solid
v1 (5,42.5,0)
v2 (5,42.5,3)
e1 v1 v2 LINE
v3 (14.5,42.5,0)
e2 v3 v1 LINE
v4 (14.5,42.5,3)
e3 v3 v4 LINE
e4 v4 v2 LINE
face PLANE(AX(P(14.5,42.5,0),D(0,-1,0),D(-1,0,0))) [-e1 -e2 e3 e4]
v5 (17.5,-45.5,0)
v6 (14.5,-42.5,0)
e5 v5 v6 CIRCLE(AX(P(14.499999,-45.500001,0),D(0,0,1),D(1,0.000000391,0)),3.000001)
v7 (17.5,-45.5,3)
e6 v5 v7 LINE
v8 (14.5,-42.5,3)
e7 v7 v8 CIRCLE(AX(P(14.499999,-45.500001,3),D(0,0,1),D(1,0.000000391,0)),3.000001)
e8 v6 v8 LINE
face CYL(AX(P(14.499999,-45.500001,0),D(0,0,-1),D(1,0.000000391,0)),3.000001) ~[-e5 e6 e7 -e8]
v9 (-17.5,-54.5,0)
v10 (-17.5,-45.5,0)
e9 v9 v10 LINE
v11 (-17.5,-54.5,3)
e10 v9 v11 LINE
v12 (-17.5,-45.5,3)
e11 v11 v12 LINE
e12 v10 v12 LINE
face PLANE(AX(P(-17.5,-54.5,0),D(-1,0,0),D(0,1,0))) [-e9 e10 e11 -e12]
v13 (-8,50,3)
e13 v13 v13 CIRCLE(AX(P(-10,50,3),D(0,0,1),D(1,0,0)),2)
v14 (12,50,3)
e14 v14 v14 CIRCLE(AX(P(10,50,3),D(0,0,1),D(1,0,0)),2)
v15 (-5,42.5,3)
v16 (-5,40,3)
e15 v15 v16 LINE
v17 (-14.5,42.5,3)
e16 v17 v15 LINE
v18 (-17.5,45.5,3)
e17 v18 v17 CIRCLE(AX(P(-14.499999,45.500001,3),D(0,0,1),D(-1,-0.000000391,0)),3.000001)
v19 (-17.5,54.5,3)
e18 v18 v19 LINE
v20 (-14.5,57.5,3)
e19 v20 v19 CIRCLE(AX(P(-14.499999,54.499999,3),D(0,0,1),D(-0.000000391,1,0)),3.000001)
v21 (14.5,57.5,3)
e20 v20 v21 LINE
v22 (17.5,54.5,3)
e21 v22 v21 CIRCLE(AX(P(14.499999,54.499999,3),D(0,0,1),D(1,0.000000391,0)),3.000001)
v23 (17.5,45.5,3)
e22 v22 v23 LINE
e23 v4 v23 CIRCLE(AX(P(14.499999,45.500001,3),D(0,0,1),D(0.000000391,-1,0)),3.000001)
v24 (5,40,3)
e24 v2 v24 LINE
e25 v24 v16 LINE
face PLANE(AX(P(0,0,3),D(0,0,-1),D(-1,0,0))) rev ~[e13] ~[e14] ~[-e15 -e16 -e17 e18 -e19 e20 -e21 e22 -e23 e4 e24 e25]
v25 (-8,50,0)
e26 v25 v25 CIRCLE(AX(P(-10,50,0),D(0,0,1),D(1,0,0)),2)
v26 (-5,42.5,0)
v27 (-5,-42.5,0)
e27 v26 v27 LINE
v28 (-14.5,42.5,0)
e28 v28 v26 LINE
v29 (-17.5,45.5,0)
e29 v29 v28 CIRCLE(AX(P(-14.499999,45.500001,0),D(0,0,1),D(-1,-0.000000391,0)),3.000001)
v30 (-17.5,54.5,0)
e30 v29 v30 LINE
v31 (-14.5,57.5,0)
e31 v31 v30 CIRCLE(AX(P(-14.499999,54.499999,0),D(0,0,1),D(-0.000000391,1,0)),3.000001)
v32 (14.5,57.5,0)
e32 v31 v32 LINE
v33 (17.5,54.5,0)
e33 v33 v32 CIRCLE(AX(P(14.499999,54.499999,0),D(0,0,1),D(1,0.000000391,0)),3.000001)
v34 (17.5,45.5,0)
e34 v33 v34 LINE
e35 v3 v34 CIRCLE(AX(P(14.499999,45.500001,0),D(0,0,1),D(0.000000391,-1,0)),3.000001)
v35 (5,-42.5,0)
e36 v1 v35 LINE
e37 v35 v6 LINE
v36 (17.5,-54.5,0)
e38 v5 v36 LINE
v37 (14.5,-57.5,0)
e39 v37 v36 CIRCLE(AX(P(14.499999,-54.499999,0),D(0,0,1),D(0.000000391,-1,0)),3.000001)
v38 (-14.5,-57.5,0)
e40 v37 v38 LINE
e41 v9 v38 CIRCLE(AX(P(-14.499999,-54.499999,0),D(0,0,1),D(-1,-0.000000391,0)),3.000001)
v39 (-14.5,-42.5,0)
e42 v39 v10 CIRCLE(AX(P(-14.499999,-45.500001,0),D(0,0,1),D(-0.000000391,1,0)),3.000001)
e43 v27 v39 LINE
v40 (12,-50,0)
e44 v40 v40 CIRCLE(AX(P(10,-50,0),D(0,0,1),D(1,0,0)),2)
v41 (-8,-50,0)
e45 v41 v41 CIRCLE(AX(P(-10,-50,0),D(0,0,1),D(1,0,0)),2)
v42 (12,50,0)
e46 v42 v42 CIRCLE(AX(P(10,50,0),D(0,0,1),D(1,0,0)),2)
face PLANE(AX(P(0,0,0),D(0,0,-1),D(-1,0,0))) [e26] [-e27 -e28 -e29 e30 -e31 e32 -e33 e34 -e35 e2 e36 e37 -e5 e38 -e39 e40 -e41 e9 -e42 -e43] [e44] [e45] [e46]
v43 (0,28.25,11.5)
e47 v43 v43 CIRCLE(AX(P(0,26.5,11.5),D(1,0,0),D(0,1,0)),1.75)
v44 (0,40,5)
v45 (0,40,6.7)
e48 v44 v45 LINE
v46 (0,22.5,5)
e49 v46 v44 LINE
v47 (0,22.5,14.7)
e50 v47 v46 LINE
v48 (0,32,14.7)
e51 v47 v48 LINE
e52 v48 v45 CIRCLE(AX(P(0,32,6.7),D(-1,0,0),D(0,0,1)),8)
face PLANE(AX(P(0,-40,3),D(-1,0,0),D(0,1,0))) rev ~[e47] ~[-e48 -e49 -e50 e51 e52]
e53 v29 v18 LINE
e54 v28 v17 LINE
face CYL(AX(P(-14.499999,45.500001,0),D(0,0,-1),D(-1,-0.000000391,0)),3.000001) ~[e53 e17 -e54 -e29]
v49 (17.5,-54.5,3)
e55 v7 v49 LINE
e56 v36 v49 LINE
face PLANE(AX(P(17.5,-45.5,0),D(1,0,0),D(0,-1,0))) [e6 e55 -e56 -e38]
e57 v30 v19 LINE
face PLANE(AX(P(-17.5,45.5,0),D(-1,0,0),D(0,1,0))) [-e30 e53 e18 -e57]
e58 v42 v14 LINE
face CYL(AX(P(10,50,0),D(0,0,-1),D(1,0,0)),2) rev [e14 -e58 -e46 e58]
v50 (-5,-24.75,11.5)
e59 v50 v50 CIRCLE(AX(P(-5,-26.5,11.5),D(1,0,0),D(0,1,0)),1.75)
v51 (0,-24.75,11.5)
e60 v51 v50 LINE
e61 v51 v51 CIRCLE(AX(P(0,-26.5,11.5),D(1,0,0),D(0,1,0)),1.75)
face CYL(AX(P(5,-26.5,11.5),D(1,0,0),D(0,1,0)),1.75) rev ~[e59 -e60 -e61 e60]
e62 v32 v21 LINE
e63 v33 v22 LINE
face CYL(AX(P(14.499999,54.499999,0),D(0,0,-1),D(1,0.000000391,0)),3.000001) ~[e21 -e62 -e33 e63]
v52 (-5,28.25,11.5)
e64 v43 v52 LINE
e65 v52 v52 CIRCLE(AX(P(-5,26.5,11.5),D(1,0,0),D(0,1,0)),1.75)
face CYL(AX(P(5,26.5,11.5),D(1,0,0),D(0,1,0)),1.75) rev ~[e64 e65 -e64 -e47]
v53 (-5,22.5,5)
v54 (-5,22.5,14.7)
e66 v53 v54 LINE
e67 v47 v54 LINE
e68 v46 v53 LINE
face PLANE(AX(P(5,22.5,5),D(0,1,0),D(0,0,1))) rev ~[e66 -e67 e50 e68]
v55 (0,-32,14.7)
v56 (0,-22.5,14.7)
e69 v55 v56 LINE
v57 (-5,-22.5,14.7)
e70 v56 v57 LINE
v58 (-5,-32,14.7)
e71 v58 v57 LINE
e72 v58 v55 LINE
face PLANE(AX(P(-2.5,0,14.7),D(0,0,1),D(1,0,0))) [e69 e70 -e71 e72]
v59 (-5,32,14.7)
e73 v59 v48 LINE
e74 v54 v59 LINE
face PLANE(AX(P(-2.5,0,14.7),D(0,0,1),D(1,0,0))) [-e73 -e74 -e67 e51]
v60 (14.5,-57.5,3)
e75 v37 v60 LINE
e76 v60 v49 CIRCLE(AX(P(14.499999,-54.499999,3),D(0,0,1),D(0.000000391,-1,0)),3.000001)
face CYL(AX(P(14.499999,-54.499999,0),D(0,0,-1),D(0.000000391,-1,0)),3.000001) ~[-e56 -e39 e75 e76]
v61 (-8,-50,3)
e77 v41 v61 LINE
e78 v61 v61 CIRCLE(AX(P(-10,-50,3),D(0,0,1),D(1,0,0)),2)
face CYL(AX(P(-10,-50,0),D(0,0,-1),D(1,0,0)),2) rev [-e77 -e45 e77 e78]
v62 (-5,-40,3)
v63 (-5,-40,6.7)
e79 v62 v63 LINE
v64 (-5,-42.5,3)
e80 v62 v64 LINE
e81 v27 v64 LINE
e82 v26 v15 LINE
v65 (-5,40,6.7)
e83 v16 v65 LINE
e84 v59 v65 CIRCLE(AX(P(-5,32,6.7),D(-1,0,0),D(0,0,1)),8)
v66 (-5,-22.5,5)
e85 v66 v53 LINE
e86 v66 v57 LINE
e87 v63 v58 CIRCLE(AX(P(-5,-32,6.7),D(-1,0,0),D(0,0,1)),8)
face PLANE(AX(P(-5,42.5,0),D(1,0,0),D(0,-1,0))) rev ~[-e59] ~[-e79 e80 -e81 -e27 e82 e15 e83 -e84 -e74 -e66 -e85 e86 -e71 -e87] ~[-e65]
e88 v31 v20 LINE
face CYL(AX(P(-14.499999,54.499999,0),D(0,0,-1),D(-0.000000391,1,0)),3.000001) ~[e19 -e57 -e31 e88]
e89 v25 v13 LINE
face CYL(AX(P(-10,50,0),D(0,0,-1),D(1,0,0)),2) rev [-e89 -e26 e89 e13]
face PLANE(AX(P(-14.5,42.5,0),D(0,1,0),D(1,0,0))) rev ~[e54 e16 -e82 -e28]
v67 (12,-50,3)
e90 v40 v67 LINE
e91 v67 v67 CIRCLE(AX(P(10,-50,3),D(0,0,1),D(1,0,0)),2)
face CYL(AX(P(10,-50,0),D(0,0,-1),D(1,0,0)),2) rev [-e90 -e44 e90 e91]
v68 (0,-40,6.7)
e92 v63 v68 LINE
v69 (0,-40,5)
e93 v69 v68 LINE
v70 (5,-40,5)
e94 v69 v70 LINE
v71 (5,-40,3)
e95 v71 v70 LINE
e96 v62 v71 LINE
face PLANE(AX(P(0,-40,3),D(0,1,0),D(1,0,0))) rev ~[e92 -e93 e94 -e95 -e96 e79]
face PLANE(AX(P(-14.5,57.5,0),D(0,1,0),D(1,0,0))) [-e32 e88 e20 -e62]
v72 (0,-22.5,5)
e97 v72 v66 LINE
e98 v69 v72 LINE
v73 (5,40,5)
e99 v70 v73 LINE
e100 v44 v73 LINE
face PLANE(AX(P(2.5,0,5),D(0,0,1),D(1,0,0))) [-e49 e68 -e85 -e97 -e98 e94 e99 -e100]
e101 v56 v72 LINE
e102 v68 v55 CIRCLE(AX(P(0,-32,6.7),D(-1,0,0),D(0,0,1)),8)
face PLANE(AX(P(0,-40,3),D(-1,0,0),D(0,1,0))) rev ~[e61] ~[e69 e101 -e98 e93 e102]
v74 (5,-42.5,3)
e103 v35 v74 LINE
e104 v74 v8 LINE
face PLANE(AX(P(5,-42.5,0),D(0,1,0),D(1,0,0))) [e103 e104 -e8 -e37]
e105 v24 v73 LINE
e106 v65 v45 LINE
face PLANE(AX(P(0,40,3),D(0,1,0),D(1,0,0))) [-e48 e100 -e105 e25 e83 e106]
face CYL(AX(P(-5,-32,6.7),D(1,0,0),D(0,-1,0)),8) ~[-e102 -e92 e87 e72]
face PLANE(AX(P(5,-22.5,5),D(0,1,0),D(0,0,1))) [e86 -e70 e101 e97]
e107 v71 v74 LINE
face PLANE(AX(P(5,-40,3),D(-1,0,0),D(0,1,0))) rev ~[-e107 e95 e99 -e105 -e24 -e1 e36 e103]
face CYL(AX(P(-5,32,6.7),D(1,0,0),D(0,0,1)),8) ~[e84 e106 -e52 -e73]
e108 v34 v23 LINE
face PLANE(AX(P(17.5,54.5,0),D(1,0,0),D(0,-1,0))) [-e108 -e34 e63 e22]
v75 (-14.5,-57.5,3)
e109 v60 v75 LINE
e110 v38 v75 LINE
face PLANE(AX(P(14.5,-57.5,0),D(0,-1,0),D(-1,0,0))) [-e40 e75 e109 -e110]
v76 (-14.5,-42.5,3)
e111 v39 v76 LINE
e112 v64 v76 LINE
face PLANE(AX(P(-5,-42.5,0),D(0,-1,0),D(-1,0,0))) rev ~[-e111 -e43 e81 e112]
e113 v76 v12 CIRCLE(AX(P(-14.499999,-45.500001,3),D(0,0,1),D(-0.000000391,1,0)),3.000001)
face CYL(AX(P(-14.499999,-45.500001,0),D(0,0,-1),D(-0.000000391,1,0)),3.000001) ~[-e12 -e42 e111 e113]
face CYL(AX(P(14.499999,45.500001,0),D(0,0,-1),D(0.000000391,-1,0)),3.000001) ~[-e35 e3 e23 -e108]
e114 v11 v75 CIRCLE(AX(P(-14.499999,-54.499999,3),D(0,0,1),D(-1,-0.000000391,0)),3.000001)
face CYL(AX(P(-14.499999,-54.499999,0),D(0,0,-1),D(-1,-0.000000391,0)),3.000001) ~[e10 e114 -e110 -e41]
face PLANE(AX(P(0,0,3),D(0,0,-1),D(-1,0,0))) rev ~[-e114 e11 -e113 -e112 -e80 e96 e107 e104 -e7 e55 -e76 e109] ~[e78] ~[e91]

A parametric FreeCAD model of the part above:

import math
import FreeCAD as App
import Part
import Sketcher
from FreeCAD import Vector
Q = App.Units.Quantity


def edges_at(feature, points):
    """Names of the edges that pass closest to the given points."""
    edges = feature.Shape.Edges
    near = lambda p: min(range(len(edges)), key=lambda i: edges[i].distToShape(Part.Vertex(*p))[0])
    return sorted({f"Edge{near(p) + 1}" for p in points})


def add_polygon(sketch, points):
    """Adds a closed chain of lines whose ends are joined by coincident constraints."""
    first, n = sketch.GeometryCount, len(points)
    for a, b in zip(points, points[1:] + points[:1]):
        sketch.addGeometry(Part.LineSegment(App.Vector(*a, 0), App.Vector(*b, 0)), False)
    for i in range(n):
        sketch.addConstraint(Sketcher.Constraint("Coincident", first + i, 2, first + (i + 1) % n, 1))

doc = App.newDocument("Part")
body = doc.addObject("PartDesign::Body", "Body")

# Sketch on XY plane
sketch1 = body.newObject("Sketcher::SketchObject", "Sketch")
sketch1.AttachmentSupport = (doc.getObject("XY_Plane"), [""])
sketch1.MapMode = "FlatFace"
sketch1.addGeometry([
    Part.LineSegment(Vector(14.5, 57.5, 0), Vector(-14.5, 57.5, 0)),  # 0
    Part.ArcOfCircle(Part.Circle(Vector(-14.5, 54.5, 0), Vector(0, 0, 1), 3), math.radians(90), math.radians(180)),  # 1
    Part.LineSegment(Vector(-17.5, 54.5, 0), Vector(-17.5, 45.5, 0)),  # 2
    Part.ArcOfCircle(Part.Circle(Vector(-14.5, 45.5, 0), Vector(0, 0, 1), 3), math.radians(-180), math.radians(-90)),  # 3
    Part.LineSegment(Vector(-14.5, 42.5, 0), Vector(-5, 42.5, 0)),  # 4
    Part.LineSegment(Vector(-5, 42.5, 0), Vector(-5, -42.5, 0)),  # 5
    Part.LineSegment(Vector(-5, -42.5, 0), Vector(-14.5, -42.5, 0)),  # 6
    Part.ArcOfCircle(Part.Circle(Vector(-14.5, -45.5, 0), Vector(0, 0, 1), 3), math.radians(90), math.radians(180)),  # 7
    Part.LineSegment(Vector(-17.5, -45.5, 0), Vector(-17.5, -54.5, 0)),  # 8
    Part.ArcOfCircle(Part.Circle(Vector(-14.5, -54.5, 0), Vector(0, 0, 1), 3), math.radians(-180), math.radians(-90)),  # 9
    Part.LineSegment(Vector(-14.5, -57.5, 0), Vector(14.5, -57.5, 0)),  # 10
    Part.ArcOfCircle(Part.Circle(Vector(14.5, -54.5, 0), Vector(0, 0, 1), 3), math.radians(-90), math.radians(0)),  # 11
    Part.LineSegment(Vector(17.5, -54.5, 0), Vector(17.5, -45.5, 0)),  # 12
    Part.ArcOfCircle(Part.Circle(Vector(14.5, -45.5, 0), Vector(0, 0, 1), 3), math.radians(0), math.radians(90)),  # 13
    Part.LineSegment(Vector(14.5, -42.5, 0), Vector(5, -42.5, 0)),  # 14
    Part.LineSegment(Vector(5, -42.5, 0), Vector(5, 42.5, 0)),  # 15
    Part.LineSegment(Vector(5, 42.5, 0), Vector(14.5, 42.5, 0)),  # 16
    Part.ArcOfCircle(Part.Circle(Vector(14.5, 45.5, 0), Vector(0, 0, 1), 3), math.radians(-90), math.radians(0)),  # 17
    Part.LineSegment(Vector(17.5, 45.5, 0), Vector(17.5, 54.5, 0)),  # 18
    Part.ArcOfCircle(Part.Circle(Vector(14.5, 54.5, 0), Vector(0, 0, 1), 3), math.radians(0), math.radians(90)),  # 19
    Part.Circle(Vector(10, -50, 0), Vector(0, 0, 1), 2),  # 20
    Part.Circle(Vector(-10, -50, 0), Vector(0, 0, 1), 2),  # 21
    Part.Circle(Vector(10, 50, 0), Vector(0, 0, 1), 2),  # 22
    Part.Circle(Vector(-10, 50, 0), Vector(0, 0, 1), 2),  # 23
], False)
sketch1.addConstraint([
    Sketcher.Constraint("Tangent", 0, 2, 1, 1),
    Sketcher.Constraint("Tangent", 1, 2, 2, 1),
    Sketcher.Constraint("Tangent", 2, 2, 3, 1),
    Sketcher.Constraint("Tangent", 3, 2, 4, 1),
    Sketcher.Constraint("Coincident", 4, 2, 5, 1),
    Sketcher.Constraint("Coincident", 5, 2, 6, 1),
    Sketcher.Constraint("Tangent", 6, 2, 7, 1),
    Sketcher.Constraint("Tangent", 7, 2, 8, 1),
    Sketcher.Constraint("Tangent", 8, 2, 9, 1),
    Sketcher.Constraint("Tangent", 9, 2, 10, 1),
    Sketcher.Constraint("Tangent", 10, 2, 11, 1),
    Sketcher.Constraint("Tangent", 11, 2, 12, 1),
    Sketcher.Constraint("Tangent", 12, 2, 13, 1),
    Sketcher.Constraint("Tangent", 13, 2, 14, 1),
    Sketcher.Constraint("Coincident", 14, 2, 15, 1),
    Sketcher.Constraint("Coincident", 15, 2, 16, 1),
    Sketcher.Constraint("Tangent", 16, 2, 17, 1),
    Sketcher.Constraint("Tangent", 17, 2, 18, 1),
    Sketcher.Constraint("Tangent", 18, 2, 19, 1),
    Sketcher.Constraint("Tangent", 19, 2, 0, 1),
    Sketcher.Constraint("Horizontal", 0),
    Sketcher.Constraint("Vertical", 2),
    Sketcher.Constraint("Horizontal", 4),
    Sketcher.Constraint("Vertical", 5),
    Sketcher.Constraint("Horizontal", 6),
    Sketcher.Constraint("Vertical", 8),
    Sketcher.Constraint("Horizontal", 10),
    Sketcher.Constraint("Vertical", 12),
    Sketcher.Constraint("Horizontal", 14),
    Sketcher.Constraint("Vertical", 15),
    Sketcher.Constraint("Horizontal", 16),
    Sketcher.Constraint("Vertical", 18),
    Sketcher.Constraint("Equal", 1, 3),
    Sketcher.Constraint("Equal", 3, 7),
    Sketcher.Constraint("Equal", 7, 9),
    Sketcher.Constraint("Equal", 9, 11),
    Sketcher.Constraint("Equal", 11, 13),
    Sketcher.Constraint("Equal", 13, 17),
    Sketcher.Constraint("Equal", 17, 19),
    Sketcher.Constraint("Equal", 20, 21),
    Sketcher.Constraint("Equal", 21, 22),
    Sketcher.Constraint("Equal", 22, 23),
    Sketcher.Constraint("Symmetric", 1, 3, 11, 3, -1, 1),
    Sketcher.Constraint("Symmetric", 7, 3, 17, 3, -1, 1),
    Sketcher.Constraint("Symmetric", 21, 3, 22, 3, -1, 1),
    Sketcher.Constraint("Symmetric", 20, 3, 23, 3, -1, 1),
    Sketcher.Constraint("Symmetric", 4, 2, 14, 2, -1, 1),
    Sketcher.Constraint("Symmetric", 7, 3, 13, 3, -2),
    Sketcher.Constraint("Symmetric", 20, 3, 21, 3, -2),
    Sketcher.Constraint("Diameter", 20, Q("4 mm")),
    Sketcher.Constraint("Radius", 1, Q("3.000001 mm")),
    Sketcher.Constraint("DistanceX", 0, 2, 0, 1, Q("29 mm")),
    Sketcher.Constraint("DistanceY", 2, 2, 2, 1, Q("9 mm")),
    Sketcher.Constraint("DistanceY", 5, 2, 5, 1, Q("85 mm")),
    Sketcher.Constraint("DistanceX", 4, 1, 4, 2, Q("9.5 mm")),
    Sketcher.Constraint("DistanceX", -1, 1, 20, 3, Q("10 mm")),
    Sketcher.Constraint("DistanceY", 20, 3, -1, 1, Q("50 mm")),
])
pad1 = body.newObject("PartDesign::Pad", "Pad")
pad1.Profile = sketch1
pad1.Length = 3

# Sketch on XY plane
sketch2 = body.newObject("Sketcher::SketchObject", "Sketch001")
sketch2.AttachmentSupport = (doc.getObject("XY_Plane"), [""])
sketch2.MapMode = "FlatFace"
sketch2.AttachmentOffset = App.Placement(Vector(0, 0, 3), App.Rotation())
add_polygon(sketch2, [(-5, 40), (-5, -40), (0, -40), (0, 40)])  # lines 0-3
sketch2.addConstraint([
    Sketcher.Constraint("Vertical", 0),
    Sketcher.Constraint("Horizontal", 1),
    Sketcher.Constraint("Vertical", 2),
    Sketcher.Constraint("Horizontal", 3),
    Sketcher.Constraint("Symmetric", 1, 2, 2, 2, -1, 1),
    Sketcher.Constraint("DistanceX", 1, 1, 1, 2, Q("5 mm")),
    Sketcher.Constraint("DistanceY", 0, 2, 0, 1, Q("80 mm")),
])
pad2 = body.newObject("PartDesign::Pad", "Pad001")
pad2.Profile = sketch2
pad2.Length = 11.7

# Sketch on YZ plane
sketch3 = body.newObject("Sketcher::SketchObject", "Sketch002")
sketch3.AttachmentSupport = (doc.getObject("YZ_Plane"), [""])
sketch3.MapMode = "FlatFace"
sketch3.AttachmentOffset = App.Placement(Vector(0, 0, 5), App.Rotation())
sketch3.addGeometry(Part.Circle(Vector(-26.5, 11.5, 0), Vector(0, 0, 1), 1.8), False)  # 0
sketch3.addGeometry(Part.Circle(Vector(26.5, 11.5, 0), Vector(0, 0, 1), 1.8), False)  # 1
add_polygon(sketch3, [(-22.5, 15), (-22.5, 5), (22.5, 5), (22.5, 15)])  # lines 2-5
sketch3.addConstraint([
    Sketcher.Constraint("Vertical", 2),
    Sketcher.Constraint("Horizontal", 3),
    Sketcher.Constraint("Vertical", 4),
    Sketcher.Constraint("Horizontal", 5),
    Sketcher.Constraint("Equal", 0, 1),
    Sketcher.Constraint("Symmetric", 0, 3, 1, 3, -2),
    Sketcher.Constraint("Diameter", 0, Q("3.5 mm")),
    Sketcher.Constraint("DistanceX", 3, 1, 3, 2, Q("45 mm")),
    Sketcher.Constraint("DistanceY", 2, 2, 2, 1, Q("10 mm")),
    Sketcher.Constraint("DistanceY", -1, 1, 2, 2, Q("5 mm")),
    Sketcher.Constraint("DistanceX", 0, 3, 1, 3, Q("53 mm")),
    Sketcher.Constraint("DistanceX", 0, 3, 2, 2, Q("4 mm")),
    Sketcher.Constraint("DistanceY", -1, 1, 0, 3, Q("11.5 mm")),
])
pocket1 = body.newObject("PartDesign::Pocket", "Pocket")
pocket1.Profile = sketch3
pocket1.Length = 15

# Sketch on XY plane
sketch4 = body.newObject("Sketcher::SketchObject", "Sketch003")
sketch4.AttachmentSupport = (doc.getObject("XY_Plane"), [""])
sketch4.MapMode = "FlatFace"
sketch4.AttachmentOffset = App.Placement(Vector(0, 0, 3), App.Rotation())
add_polygon(sketch4, [(0, 40), (0, -40), (5, -40), (5, 40)])  # lines 0-3
sketch4.addConstraint([
    Sketcher.Constraint("Vertical", 0),
    Sketcher.Constraint("Horizontal", 1),
    Sketcher.Constraint("Vertical", 2),
    Sketcher.Constraint("Horizontal", 3),
    Sketcher.Constraint("Symmetric", 0, 2, 3, 2, -1, 1),
    Sketcher.Constraint("DistanceX", 1, 1, 1, 2, Q("5 mm")),
    Sketcher.Constraint("DistanceY", 0, 2, 0, 1, Q("80 mm")),
])
pad3 = body.newObject("PartDesign::Pad", "Pad002")
pad3.Profile = sketch4
pad3.Length = 2
doc.recompute()

fillet = body.newObject("PartDesign::Fillet", "Fillet")
fillet.Base = (pad3, edges_at(pad3, [(-2.5, -40, 14.7), (-2.5, 40, 14.7)]))
fillet.Radius = 8

doc.recompute()
